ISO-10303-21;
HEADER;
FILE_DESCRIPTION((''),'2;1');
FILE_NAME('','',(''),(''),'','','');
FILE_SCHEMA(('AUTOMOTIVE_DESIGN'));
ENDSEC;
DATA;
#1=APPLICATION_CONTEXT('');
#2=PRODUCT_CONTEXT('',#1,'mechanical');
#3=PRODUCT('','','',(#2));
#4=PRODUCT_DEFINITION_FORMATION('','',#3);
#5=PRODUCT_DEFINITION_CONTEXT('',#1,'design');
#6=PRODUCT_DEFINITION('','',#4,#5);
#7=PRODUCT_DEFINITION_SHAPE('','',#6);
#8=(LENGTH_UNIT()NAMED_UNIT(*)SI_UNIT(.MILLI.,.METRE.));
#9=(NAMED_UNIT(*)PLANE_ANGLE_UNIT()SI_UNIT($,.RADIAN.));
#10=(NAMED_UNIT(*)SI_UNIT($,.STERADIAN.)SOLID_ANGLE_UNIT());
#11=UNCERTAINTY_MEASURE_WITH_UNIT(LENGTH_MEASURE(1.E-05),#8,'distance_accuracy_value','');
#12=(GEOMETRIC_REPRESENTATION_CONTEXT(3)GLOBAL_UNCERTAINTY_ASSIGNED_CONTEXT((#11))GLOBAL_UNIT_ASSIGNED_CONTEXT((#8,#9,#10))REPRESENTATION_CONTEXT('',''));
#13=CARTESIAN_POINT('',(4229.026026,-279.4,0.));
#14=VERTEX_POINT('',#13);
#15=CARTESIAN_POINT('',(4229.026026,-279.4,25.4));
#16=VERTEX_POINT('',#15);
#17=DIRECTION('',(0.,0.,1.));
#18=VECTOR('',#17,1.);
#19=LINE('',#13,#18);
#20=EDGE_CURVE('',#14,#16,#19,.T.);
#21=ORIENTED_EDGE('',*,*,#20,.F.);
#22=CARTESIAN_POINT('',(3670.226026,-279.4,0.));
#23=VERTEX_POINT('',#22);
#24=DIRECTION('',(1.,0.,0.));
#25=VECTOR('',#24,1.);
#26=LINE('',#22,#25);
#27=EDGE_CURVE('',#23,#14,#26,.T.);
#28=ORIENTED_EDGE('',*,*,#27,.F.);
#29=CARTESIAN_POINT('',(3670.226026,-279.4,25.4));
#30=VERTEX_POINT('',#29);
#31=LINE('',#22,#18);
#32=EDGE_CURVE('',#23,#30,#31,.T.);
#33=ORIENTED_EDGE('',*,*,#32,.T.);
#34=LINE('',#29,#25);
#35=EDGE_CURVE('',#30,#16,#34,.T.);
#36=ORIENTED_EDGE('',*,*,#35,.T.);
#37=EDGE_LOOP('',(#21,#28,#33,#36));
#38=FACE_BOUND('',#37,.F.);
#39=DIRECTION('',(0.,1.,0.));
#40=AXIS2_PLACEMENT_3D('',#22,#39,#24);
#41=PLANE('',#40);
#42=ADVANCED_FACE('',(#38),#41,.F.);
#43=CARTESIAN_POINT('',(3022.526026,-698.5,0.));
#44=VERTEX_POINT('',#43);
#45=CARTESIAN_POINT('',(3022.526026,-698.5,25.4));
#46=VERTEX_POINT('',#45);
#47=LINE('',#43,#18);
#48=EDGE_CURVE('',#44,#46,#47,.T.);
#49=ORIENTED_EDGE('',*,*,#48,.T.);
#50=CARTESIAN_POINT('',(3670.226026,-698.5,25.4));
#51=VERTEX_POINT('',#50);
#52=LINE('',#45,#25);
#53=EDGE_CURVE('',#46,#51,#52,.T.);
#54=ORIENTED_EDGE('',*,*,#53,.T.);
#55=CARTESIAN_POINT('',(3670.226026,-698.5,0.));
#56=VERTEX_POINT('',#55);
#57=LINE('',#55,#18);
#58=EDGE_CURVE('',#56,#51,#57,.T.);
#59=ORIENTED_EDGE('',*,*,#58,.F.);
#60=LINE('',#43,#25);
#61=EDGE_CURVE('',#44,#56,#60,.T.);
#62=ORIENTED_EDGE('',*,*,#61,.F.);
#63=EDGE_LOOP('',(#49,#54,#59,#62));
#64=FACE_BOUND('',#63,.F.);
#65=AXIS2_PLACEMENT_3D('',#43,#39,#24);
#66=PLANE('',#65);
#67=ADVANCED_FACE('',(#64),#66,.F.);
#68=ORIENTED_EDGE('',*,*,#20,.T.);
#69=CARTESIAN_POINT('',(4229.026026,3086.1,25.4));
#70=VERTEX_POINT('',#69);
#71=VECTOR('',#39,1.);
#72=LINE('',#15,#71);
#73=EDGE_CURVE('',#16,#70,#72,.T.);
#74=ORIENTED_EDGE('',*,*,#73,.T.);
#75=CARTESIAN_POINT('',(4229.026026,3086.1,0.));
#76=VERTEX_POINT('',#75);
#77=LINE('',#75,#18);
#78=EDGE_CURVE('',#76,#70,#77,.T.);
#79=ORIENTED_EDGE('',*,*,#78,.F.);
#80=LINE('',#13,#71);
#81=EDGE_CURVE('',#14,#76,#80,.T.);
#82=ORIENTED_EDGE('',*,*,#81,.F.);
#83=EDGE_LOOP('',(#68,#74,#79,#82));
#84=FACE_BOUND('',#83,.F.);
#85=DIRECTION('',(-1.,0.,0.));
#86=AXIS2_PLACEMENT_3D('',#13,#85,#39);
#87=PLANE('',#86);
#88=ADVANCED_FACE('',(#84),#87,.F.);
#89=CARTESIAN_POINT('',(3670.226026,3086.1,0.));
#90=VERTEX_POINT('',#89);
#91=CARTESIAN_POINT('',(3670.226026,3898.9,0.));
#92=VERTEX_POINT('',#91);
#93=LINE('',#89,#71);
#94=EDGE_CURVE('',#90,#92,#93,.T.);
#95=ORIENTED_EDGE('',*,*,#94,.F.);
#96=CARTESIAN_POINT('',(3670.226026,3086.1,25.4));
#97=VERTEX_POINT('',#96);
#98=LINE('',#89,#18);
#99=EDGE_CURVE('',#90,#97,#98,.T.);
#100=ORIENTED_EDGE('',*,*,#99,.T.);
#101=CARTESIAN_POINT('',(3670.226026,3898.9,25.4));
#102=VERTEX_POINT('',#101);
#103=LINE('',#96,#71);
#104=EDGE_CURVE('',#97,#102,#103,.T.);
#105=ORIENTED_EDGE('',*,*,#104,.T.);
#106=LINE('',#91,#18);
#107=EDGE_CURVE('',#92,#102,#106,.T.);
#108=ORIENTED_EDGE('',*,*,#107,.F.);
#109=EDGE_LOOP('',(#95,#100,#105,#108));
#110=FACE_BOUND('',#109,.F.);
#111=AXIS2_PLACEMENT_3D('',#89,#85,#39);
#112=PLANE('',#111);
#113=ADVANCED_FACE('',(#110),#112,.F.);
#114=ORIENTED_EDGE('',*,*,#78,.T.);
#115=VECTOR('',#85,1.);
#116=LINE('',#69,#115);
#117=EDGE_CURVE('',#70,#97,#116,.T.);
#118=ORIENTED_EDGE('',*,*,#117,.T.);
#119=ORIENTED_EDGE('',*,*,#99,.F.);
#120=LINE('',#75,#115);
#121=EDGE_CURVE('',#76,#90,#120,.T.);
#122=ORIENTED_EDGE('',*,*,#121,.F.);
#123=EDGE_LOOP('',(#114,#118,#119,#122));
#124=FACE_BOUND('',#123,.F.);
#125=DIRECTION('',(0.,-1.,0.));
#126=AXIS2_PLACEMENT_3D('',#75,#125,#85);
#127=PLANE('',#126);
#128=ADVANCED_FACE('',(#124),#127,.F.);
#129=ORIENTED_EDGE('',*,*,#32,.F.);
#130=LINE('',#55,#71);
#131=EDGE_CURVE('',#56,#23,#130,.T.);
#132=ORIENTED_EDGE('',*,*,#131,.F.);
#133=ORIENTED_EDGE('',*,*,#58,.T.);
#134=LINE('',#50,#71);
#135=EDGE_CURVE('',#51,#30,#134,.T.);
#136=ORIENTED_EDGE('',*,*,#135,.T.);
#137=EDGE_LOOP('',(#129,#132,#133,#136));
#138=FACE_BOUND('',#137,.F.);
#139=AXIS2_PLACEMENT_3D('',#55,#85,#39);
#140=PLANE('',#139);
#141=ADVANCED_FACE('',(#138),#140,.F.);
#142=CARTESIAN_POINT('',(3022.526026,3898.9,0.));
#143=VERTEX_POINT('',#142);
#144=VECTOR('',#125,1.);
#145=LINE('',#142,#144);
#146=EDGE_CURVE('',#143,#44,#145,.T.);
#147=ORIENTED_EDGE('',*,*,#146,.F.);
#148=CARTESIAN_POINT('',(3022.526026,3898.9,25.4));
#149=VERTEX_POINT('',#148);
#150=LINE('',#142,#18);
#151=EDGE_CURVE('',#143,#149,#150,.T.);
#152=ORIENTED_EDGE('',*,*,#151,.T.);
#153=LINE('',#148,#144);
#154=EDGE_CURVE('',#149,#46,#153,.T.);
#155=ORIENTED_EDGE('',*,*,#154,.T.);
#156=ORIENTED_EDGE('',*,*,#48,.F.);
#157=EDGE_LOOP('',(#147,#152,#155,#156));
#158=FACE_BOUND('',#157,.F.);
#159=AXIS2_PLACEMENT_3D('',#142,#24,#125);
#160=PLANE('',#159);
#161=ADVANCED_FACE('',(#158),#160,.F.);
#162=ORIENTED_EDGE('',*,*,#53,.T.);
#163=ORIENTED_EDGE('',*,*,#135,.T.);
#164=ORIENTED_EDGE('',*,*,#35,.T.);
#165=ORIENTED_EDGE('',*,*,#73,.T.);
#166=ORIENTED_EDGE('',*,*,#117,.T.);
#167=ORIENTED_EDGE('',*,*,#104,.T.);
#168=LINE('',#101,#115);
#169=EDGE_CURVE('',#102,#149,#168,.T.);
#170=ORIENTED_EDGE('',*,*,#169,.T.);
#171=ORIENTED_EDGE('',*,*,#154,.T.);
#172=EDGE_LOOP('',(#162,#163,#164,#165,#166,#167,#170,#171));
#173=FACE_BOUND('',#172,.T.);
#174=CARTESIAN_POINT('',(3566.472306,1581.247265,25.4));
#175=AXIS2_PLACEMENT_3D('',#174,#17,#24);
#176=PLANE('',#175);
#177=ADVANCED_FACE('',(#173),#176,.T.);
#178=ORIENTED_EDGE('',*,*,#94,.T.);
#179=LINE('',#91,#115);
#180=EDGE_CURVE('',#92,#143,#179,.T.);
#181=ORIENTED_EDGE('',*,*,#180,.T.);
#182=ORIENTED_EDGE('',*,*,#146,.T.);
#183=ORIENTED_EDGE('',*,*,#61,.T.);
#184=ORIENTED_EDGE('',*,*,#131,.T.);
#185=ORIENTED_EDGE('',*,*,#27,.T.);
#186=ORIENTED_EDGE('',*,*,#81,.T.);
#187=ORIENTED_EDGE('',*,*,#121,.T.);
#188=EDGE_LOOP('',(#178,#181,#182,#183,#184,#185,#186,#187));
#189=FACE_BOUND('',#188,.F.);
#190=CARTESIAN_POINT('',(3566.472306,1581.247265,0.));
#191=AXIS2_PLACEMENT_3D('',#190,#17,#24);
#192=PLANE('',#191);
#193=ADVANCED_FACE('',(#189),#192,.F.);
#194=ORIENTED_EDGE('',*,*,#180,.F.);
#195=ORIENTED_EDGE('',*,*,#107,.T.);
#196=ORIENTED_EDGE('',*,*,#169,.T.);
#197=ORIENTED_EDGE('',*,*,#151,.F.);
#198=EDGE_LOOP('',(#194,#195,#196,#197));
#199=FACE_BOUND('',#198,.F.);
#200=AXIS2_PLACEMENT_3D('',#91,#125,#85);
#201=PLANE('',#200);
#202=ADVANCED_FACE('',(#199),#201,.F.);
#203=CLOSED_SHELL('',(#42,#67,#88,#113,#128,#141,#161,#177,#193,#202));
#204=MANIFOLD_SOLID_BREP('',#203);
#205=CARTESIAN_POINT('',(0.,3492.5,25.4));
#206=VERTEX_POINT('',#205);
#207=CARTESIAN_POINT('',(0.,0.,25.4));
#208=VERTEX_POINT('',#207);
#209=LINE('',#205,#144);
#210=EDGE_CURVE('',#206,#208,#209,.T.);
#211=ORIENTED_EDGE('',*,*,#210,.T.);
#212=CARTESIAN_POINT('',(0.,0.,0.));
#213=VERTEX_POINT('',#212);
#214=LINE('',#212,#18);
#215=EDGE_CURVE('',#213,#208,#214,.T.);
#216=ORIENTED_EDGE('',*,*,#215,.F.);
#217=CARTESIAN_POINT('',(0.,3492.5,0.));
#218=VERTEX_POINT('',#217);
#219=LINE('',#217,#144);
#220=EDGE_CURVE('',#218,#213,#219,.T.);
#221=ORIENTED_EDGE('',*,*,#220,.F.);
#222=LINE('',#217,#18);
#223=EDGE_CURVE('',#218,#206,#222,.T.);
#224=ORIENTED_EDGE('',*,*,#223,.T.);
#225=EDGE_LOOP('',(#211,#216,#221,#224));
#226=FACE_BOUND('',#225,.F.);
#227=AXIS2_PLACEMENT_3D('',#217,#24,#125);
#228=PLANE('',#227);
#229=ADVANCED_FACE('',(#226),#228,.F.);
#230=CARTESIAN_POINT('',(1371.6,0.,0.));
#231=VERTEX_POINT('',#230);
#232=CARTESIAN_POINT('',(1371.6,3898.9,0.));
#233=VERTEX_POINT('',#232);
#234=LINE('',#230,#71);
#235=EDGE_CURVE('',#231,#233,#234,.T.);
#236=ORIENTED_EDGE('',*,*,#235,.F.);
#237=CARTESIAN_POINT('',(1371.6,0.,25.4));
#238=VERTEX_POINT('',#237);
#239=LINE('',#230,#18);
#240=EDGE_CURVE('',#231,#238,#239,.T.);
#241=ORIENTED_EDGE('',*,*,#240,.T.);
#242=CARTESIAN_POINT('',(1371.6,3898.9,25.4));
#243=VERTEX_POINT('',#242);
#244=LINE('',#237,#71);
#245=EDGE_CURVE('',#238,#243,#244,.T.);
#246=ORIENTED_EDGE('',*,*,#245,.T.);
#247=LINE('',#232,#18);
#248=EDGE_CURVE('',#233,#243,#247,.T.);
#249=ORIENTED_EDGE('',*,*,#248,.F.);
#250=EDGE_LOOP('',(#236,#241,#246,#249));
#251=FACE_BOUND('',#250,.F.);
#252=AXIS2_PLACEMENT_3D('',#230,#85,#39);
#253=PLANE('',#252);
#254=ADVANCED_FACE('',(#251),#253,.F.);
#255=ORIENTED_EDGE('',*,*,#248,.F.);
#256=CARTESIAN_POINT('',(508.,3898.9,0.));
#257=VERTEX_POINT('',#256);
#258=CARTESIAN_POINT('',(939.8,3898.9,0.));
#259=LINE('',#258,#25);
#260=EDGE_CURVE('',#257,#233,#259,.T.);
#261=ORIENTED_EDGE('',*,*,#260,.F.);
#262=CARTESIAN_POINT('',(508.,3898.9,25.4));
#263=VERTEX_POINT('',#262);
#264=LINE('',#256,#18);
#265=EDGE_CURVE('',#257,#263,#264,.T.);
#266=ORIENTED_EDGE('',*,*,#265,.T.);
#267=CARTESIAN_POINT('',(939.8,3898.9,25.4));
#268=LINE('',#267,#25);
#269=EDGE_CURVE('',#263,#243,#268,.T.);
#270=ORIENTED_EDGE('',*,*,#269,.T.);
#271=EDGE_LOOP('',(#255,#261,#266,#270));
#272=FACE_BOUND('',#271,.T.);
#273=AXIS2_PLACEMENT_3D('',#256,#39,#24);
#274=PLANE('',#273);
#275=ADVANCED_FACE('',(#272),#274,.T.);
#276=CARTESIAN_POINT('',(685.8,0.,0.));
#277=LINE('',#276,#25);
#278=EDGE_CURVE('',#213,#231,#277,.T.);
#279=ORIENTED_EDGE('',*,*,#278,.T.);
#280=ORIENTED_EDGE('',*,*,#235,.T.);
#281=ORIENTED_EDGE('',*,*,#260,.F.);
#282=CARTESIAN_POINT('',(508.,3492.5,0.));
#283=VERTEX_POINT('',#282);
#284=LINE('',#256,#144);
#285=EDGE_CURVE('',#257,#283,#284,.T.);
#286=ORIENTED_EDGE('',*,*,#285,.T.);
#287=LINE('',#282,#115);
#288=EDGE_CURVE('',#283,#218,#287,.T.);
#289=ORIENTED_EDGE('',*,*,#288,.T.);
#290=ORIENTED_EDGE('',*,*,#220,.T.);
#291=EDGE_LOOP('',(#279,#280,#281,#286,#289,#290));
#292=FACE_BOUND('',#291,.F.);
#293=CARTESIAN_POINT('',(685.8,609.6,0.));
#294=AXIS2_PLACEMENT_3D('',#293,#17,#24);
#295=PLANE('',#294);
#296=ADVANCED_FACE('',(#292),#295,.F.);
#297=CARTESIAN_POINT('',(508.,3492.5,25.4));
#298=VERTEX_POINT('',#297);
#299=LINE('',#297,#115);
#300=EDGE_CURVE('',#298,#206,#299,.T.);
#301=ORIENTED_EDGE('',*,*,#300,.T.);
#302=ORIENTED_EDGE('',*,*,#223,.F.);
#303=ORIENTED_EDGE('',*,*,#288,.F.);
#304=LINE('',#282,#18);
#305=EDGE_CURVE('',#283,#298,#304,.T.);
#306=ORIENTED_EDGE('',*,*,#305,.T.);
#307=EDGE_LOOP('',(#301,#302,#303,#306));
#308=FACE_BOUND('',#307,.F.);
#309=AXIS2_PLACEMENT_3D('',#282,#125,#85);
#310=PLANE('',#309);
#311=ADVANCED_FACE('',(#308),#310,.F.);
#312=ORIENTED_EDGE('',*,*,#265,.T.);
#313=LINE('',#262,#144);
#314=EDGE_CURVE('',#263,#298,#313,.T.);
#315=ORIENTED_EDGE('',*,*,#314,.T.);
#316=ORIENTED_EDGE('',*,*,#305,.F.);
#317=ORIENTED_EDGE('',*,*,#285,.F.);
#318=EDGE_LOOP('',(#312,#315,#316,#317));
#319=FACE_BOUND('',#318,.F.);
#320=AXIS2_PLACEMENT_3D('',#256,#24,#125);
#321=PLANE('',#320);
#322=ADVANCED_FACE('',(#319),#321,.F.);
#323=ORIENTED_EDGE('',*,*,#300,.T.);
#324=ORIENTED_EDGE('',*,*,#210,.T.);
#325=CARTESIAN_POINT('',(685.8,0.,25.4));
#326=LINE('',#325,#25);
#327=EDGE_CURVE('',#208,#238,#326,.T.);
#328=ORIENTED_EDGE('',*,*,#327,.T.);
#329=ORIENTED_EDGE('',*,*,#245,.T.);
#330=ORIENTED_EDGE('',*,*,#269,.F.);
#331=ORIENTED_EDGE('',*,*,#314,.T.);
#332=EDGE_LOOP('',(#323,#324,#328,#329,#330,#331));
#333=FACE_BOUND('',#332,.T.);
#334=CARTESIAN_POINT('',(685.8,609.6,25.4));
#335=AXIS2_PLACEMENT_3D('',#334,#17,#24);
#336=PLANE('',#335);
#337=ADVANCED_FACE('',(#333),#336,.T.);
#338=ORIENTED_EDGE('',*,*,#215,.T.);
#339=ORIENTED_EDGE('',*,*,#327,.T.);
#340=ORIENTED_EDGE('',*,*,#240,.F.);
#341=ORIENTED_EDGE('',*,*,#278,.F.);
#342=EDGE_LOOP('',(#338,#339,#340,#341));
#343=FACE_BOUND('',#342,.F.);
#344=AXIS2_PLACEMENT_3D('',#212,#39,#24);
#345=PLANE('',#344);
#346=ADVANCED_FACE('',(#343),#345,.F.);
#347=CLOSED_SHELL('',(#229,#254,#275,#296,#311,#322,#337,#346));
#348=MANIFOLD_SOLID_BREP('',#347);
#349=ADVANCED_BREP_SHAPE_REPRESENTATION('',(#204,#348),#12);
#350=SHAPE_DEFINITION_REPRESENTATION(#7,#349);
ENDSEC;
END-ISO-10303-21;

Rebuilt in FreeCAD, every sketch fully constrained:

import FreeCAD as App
import Part
import Sketcher
from FreeCAD import Vector
Q = App.Units.Quantity

doc = App.newDocument("Part")
params = doc.addObject("Spreadsheet::Sheet", "Params")
for row, (alias, value) in enumerate([
    ("sketch1_width", "54 in"),
    ("sketch1_width2", "34 in"),
    ("sketch1_height", "16 in"),
    ("sketch1_height2", "153.5 in"),
    ("pad1_length", "1 in"),
    ("sketch2_width", "22 in"),
    ("sketch2_height", "181 in"),
    ("sketch2_height2", "32 in"),
    ("sketch2_width2", "25.5 in"),
    ("sketch2_height3", "16.5 in"),
    ("pad2_length", "1 in"),
], start=1):
    params.set(f"A{row}", alias)
    params.set(f"B{row}", "=" + value)
    params.setAlias(f"B{row}", alias)

body = doc.addObject("PartDesign::Body", "Body")

sketch1 = body.newObject("Sketcher::SketchObject", "Sketch")
sketch1.AttachmentSupport = (doc.getObject("XY_Plane"), [""])
sketch1.MapMode = "FlatFace"
sketch1.addGeometry(Part.LineSegment(Vector(0, 0, 0), Vector(1372, 0, 0)), False)
sketch1.addGeometry(Part.LineSegment(Vector(1372, 0, 0), Vector(1372, 3899, 0)), False)
sketch1.addGeometry(Part.LineSegment(Vector(1372, 3899, 0), Vector(508, 3899, 0)), False)
sketch1.addGeometry(Part.LineSegment(Vector(508, 3899, 0), Vector(508, 3492, 0)), False)
sketch1.addGeometry(Part.LineSegment(Vector(508, 3492, 0), Vector(0, 3492, 0)), False)
sketch1.addGeometry(Part.LineSegment(Vector(0, 3492, 0), Vector(0, 0, 0)), False)
sketch1.addConstraint(Sketcher.Constraint("Coincident", 0, 2, 1, 1))
sketch1.addConstraint(Sketcher.Constraint("Coincident", 1, 2, 2, 1))
sketch1.addConstraint(Sketcher.Constraint("Coincident", 2, 2, 3, 1))
sketch1.addConstraint(Sketcher.Constraint("Coincident", 3, 2, 4, 1))
sketch1.addConstraint(Sketcher.Constraint("Coincident", 4, 2, 5, 1))
sketch1.addConstraint(Sketcher.Constraint("Coincident", 5, 2, 0, 1))
sketch1.addConstraint(Sketcher.Constraint("Horizontal", 0))
sketch1.addConstraint(Sketcher.Constraint("Vertical", 1))
sketch1.addConstraint(Sketcher.Constraint("Horizontal", 2))
sketch1.addConstraint(Sketcher.Constraint("Vertical", 3))
sketch1.addConstraint(Sketcher.Constraint("Horizontal", 4))
sketch1.addConstraint(Sketcher.Constraint("Vertical", 5))
sketch1.addConstraint(Sketcher.Constraint("Coincident", 5, 2, -1, 1))
sketch1.addConstraint(Sketcher.Constraint("DistanceX", 0, 1, 0, 2, Q("54 in")))
sketch1.addConstraint(Sketcher.Constraint("DistanceX", 2, 2, 2, 1, Q("34 in")))
sketch1.addConstraint(Sketcher.Constraint("DistanceY", 3, 2, 3, 1, Q("16 in")))
sketch1.addConstraint(Sketcher.Constraint("DistanceY", 1, 1, 1, 2, Q("153.5 in")))
sketch1.setExpression("Constraints[13]", "Params.sketch1_width")
sketch1.setExpression("Constraints[14]", "Params.sketch1_width2")
sketch1.setExpression("Constraints[15]", "Params.sketch1_height")
sketch1.setExpression("Constraints[16]", "Params.sketch1_height2")
pad1 = body.newObject("PartDesign::Pad", "Pad")
pad1.Profile = sketch1
pad1.setExpression("Length", "Params.pad1_length")
body2 = doc.addObject("PartDesign::Body", "Body001")

sketch2 = body2.newObject("Sketcher::SketchObject", "Sketch001")
sketch2.AttachmentSupport = (doc.getObject("XY_Plane001"), [""])
sketch2.MapMode = "FlatFace"
sketch2.addGeometry(Part.LineSegment(Vector(3670, 3899, 0), Vector(3023, 3899, 0)), False)
sketch2.addGeometry(Part.LineSegment(Vector(3023, 3899, 0), Vector(3023, -698, 0)), False)
sketch2.addGeometry(Part.LineSegment(Vector(3023, -698, 0), Vector(3670, -698, 0)), False)
sketch2.addGeometry(Part.LineSegment(Vector(3670, -698, 0), Vector(3670, -279, 0)), False)
sketch2.addGeometry(Part.LineSegment(Vector(3670, -279, 0), Vector(4229, -279, 0)), False)
sketch2.addGeometry(Part.LineSegment(Vector(4229, -279, 0), Vector(4229, 3086, 0)), False)
sketch2.addGeometry(Part.LineSegment(Vector(4229, 3086, 0), Vector(3670, 3086, 0)), False)
sketch2.addGeometry(Part.LineSegment(Vector(3670, 3086, 0), Vector(3670, 3899, 0)), False)
sketch2.addConstraint(Sketcher.Constraint("Coincident", 0, 2, 1, 1))
sketch2.addConstraint(Sketcher.Constraint("Coincident", 1, 2, 2, 1))
sketch2.addConstraint(Sketcher.Constraint("Coincident", 2, 2, 3, 1))
sketch2.addConstraint(Sketcher.Constraint("Coincident", 3, 2, 4, 1))
sketch2.addConstraint(Sketcher.Constraint("Coincident", 4, 2, 5, 1))
sketch2.addConstraint(Sketcher.Constraint("Coincident", 5, 2, 6, 1))
sketch2.addConstraint(Sketcher.Constraint("Coincident", 6, 2, 7, 1))
sketch2.addConstraint(Sketcher.Constraint("Coincident", 7, 2, 0, 1))
sketch2.addConstraint(Sketcher.Constraint("Horizontal", 0))
sketch2.addConstraint(Sketcher.Constraint("Vertical", 1))
sketch2.addConstraint(Sketcher.Constraint("Horizontal", 2))
sketch2.addConstraint(Sketcher.Constraint("Vertical", 3))
sketch2.addConstraint(Sketcher.Constraint("Horizontal", 4))
sketch2.addConstraint(Sketcher.Constraint("Vertical", 5))
sketch2.addConstraint(Sketcher.Constraint("Horizontal", 6))
sketch2.addConstraint(Sketcher.Constraint("Vertical", 7))
sketch2.addConstraint(Sketcher.Constraint("Vertical", 3, 2, 6, 2))
sketch2.addConstraint(Sketcher.Constraint("DistanceX", 4, 1, 4, 2, Q("22 in")))
sketch2.addConstraint(Sketcher.Constraint("DistanceY", 1, 2, 1, 1, Q("181 in")))
sketch2.addConstraint(Sketcher.Constraint("DistanceY", 7, 1, 7, 2, Q("32 in")))
sketch2.addConstraint(Sketcher.Constraint("DistanceX", 0, 2, 0, 1, Q("25.5 in")))
sketch2.addConstraint(Sketcher.Constraint("DistanceY", 3, 1, 3, 2, Q("16.5 in")))
sketch2.addConstraint(Sketcher.Constraint("DistanceY", 3, 2, -1, 1, Q("11 in")))
sketch2.addConstraint(Sketcher.Constraint("DistanceX", -1, 1, 0, 2, 3022.526026))
sketch2.setExpression("Constraints[17]", "Params.sketch2_width")
sketch2.setExpression("Constraints[18]", "Params.sketch2_height")
sketch2.setExpression("Constraints[19]", "Params.sketch2_height2")
sketch2.setExpression("Constraints[20]", "Params.sketch2_width2")
sketch2.setExpression("Constraints[21]", "Params.sketch2_height3")
pad2 = body2.newObject("PartDesign::Pad", "Pad001")
pad2.Profile = sketch2
pad2.setExpression("Length", "Params.pad2_length")

doc.recompute()
